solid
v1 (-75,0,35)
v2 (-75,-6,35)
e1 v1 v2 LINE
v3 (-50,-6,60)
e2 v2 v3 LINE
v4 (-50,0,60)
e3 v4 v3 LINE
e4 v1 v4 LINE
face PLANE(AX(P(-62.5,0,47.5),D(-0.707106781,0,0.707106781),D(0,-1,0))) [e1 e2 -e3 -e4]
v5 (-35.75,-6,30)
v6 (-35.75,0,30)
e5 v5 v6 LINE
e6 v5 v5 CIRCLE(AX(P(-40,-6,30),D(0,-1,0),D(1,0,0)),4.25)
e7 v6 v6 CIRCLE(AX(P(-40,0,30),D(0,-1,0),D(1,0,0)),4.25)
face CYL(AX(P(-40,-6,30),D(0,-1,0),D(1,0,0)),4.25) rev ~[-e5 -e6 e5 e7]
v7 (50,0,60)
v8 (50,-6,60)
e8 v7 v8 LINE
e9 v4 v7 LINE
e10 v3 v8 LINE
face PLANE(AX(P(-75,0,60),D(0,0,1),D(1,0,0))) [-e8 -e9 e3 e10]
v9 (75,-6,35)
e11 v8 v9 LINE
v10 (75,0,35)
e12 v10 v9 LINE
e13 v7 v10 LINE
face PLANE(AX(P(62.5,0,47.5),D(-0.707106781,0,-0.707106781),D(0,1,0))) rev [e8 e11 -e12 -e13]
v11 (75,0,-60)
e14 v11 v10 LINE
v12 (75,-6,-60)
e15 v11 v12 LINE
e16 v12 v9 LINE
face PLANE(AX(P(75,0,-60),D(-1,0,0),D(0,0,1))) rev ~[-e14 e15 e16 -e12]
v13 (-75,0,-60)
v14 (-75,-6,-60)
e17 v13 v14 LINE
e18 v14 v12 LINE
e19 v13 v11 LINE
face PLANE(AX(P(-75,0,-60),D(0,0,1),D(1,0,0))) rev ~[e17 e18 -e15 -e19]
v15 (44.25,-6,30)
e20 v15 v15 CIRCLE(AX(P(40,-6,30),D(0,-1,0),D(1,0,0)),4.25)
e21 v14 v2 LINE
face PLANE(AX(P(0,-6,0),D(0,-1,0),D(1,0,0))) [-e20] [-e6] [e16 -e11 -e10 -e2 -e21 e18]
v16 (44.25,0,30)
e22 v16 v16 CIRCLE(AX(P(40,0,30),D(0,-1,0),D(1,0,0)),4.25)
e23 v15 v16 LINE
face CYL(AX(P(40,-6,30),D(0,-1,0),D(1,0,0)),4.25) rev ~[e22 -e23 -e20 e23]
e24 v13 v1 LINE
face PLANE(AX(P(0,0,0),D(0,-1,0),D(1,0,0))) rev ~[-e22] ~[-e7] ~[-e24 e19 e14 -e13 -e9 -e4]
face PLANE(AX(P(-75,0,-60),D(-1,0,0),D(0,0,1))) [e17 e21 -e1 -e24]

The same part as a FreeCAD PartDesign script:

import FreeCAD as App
import Part
import Sketcher
from FreeCAD import Vector
Q = App.Units.Quantity


def edges_at(feature, points):
    """Names of the edges that pass closest to the given points."""
    edges = feature.Shape.Edges
    near = lambda p: min(range(len(edges)), key=lambda i: edges[i].distToShape(Part.Vertex(*p))[0])
    return sorted({f"Edge{near(p) + 1}" for p in points})

doc = App.newDocument("Part")
params = doc.addObject("Spreadsheet::Sheet", "Params")
for row, (alias, value) in enumerate([
    ("sketch1_width", "150 mm"),
    ("sketch1_height", "120 mm"),
    ("pad1_length", "6 mm"),
    ("sketch2_diameter", "8.5 mm"),
    ("pocket1_length", "25 mm"),
    ("chamfer_size", "25 mm"),
], start=1):
    params.set(f"A{row}", alias)
    params.set(f"B{row}", "=" + value)
    params.setAlias(f"B{row}", alias)

body = doc.addObject("PartDesign::Body", "Body")

sketch1 = body.newObject("Sketcher::SketchObject", "Sketch")
sketch1.AttachmentSupport = (doc.getObject("XZ_Plane"), [""])
sketch1.MapMode = "FlatFace"
sketch1.addGeometry(Part.LineSegment(Vector(-75, 60, 0), Vector(-75, -60, 0)), False)
sketch1.addGeometry(Part.LineSegment(Vector(-75, -60, 0), Vector(75, -60, 0)), False)
sketch1.addGeometry(Part.LineSegment(Vector(75, -60, 0), Vector(75, 60, 0)), False)
sketch1.addGeometry(Part.LineSegment(Vector(75, 60, 0), Vector(-75, 60, 0)), False)
sketch1.addConstraint(Sketcher.Constraint("Coincident", 0, 2, 1, 1))
sketch1.addConstraint(Sketcher.Constraint("Coincident", 1, 2, 2, 1))
sketch1.addConstraint(Sketcher.Constraint("Coincident", 2, 2, 3, 1))
sketch1.addConstraint(Sketcher.Constraint("Coincident", 3, 2, 0, 1))
sketch1.addConstraint(Sketcher.Constraint("Vertical", 0))
sketch1.addConstraint(Sketcher.Constraint("Horizontal", 1))
sketch1.addConstraint(Sketcher.Constraint("Vertical", 2))
sketch1.addConstraint(Sketcher.Constraint("Horizontal", 3))
sketch1.addConstraint(Sketcher.Constraint("Symmetric", 0, 2, 2, 2, -1, 1))
sketch1.addConstraint(Sketcher.Constraint("DistanceX", 1, 1, 1, 2, Q("150 mm")))
sketch1.addConstraint(Sketcher.Constraint("DistanceY", 0, 2, 0, 1, Q("120 mm")))
sketch1.setExpression("Constraints[9]", "Params.sketch1_width")
sketch1.setExpression("Constraints[10]", "Params.sketch1_height")
pad1 = body.newObject("PartDesign::Pad", "Pad")
pad1.Profile = sketch1
pad1.setExpression("Length", "Params.pad1_length")

sketch2 = body.newObject("Sketcher::SketchObject", "Sketch001")
sketch2.AttachmentSupport = (doc.getObject("XZ_Plane"), [""])
sketch2.MapMode = "FlatFace"
sketch2.AttachmentOffset = App.Placement(Vector(0, 0, 6), App.Rotation())
sketch2.addGeometry(Part.Circle(Vector(-40, 30, 0), Vector(0, 0, 1), 4.25), False)
sketch2.addGeometry(Part.Circle(Vector(40, 30, 0), Vector(0, 0, 1), 4.25), False)
sketch2.addConstraint(Sketcher.Constraint("Equal", 0, 1))
sketch2.addConstraint(Sketcher.Constraint("Symmetric", 0, 3, 1, 3, -2))
sketch2.addConstraint(Sketcher.Constraint("Diameter", 0, Q("8.5 mm")))
sketch2.addConstraint(Sketcher.Constraint("DistanceX", 0, 3, -1, 1, Q("40 mm")))
sketch2.addConstraint(Sketcher.Constraint("DistanceY", -1, 1, 0, 3, Q("30 mm")))
sketch2.setExpression("Constraints[2]", "Params.sketch2_diameter")
pocket1 = body.newObject("PartDesign::Pocket", "Pocket")
pocket1.Profile = sketch2
pocket1.setExpression("Length", "Params.pocket1_length")
doc.recompute()

chamfer = body.newObject("PartDesign::Chamfer", "Chamfer")
chamfer.Base = (pocket1, edges_at(pocket1, [(-75, -3, 60), (75, -3, 60)]))
chamfer.setExpression("Size", "Params.chamfer_size")

doc.recompute()
